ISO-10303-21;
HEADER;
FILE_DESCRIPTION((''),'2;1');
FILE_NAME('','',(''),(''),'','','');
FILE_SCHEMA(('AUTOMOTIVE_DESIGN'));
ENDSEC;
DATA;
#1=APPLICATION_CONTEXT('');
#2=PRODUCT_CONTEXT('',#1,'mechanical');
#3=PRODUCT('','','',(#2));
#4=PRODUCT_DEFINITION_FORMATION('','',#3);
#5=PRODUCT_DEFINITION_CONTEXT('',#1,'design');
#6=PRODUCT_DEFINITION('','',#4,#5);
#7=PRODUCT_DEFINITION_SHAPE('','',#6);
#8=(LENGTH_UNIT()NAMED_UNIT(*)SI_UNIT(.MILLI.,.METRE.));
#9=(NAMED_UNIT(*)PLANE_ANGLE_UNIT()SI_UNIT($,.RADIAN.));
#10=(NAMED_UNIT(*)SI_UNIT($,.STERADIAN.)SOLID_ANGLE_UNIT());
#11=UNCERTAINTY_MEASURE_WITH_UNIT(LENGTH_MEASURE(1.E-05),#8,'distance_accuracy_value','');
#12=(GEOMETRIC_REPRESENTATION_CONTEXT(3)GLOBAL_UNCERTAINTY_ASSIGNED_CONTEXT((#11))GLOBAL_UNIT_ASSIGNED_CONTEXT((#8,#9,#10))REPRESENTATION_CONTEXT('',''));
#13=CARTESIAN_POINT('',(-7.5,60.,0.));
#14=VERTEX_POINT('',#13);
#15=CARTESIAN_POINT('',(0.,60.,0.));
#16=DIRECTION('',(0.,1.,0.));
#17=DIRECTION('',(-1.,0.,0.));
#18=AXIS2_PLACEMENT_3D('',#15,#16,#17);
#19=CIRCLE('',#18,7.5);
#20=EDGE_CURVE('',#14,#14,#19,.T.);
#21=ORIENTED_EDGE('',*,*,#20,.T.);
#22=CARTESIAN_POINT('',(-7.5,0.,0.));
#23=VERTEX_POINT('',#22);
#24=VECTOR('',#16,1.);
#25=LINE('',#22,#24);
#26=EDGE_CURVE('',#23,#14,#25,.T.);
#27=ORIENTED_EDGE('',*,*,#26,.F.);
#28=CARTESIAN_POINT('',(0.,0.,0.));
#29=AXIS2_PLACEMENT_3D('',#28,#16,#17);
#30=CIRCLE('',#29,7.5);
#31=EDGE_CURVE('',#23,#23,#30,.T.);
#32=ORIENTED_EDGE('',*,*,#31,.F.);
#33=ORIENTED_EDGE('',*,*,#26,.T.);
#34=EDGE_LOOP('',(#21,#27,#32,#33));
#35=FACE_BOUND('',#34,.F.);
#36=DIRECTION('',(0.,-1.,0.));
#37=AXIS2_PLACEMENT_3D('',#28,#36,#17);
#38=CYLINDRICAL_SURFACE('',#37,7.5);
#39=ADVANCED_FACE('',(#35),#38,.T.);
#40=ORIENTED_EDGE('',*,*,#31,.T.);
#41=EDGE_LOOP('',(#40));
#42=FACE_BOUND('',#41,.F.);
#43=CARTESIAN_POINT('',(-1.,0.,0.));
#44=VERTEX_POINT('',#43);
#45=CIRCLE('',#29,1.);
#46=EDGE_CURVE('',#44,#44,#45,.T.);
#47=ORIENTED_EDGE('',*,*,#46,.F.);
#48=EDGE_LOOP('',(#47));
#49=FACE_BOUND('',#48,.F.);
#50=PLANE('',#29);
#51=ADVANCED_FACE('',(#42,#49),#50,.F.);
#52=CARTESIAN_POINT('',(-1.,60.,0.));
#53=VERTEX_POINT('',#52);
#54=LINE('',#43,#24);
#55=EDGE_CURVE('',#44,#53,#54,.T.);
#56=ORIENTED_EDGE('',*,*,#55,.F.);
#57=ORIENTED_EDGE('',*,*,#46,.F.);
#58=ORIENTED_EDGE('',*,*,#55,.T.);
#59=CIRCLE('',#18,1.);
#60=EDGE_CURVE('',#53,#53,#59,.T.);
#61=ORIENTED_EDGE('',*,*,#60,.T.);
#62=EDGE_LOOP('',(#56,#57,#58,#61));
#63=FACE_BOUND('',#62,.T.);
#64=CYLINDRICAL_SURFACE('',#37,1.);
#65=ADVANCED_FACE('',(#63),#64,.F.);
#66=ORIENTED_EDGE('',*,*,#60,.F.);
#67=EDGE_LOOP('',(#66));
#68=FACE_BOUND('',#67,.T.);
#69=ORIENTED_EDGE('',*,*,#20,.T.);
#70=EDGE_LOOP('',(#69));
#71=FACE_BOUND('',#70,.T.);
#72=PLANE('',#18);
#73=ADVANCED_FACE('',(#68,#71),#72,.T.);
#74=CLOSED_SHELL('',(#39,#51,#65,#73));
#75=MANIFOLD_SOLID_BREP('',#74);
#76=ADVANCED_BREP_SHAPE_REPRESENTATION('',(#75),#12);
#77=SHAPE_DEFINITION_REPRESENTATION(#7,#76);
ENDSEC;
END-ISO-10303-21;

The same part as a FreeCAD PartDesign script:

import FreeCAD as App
import Part
import Sketcher
from FreeCAD import Vector

doc = App.newDocument("Part")
body = doc.addObject("PartDesign::Body", "Body")

sketch1 = body.newObject("Sketcher::SketchObject", "Sketch")
sketch1.AttachmentSupport = (doc.getObject("XZ_Plane"), [""])
sketch1.MapMode = "FlatFace"
sketch1.addGeometry([
    Part.Circle(Vector(0, 0, 0), Vector(0, 0, 1), 7.5),
    Part.Circle(Vector(0, 0, 0), Vector(0, 0, 1), 1),
], False)
sketch1.addConstraint([
    Sketcher.Constraint("Coincident", 0, 3, -1, 1),
    Sketcher.Constraint("Coincident", 1, 3, -1, 1),
    Sketcher.Constraint("Diameter", 0, 15.0),
    Sketcher.Constraint("Diameter", 1, 2.0),
])
pad1 = body.newObject("PartDesign::Pad", "Pad")
pad1.Profile = sketch1
pad1.Length = 60
pad1.Reversed = True

doc.recompute()
